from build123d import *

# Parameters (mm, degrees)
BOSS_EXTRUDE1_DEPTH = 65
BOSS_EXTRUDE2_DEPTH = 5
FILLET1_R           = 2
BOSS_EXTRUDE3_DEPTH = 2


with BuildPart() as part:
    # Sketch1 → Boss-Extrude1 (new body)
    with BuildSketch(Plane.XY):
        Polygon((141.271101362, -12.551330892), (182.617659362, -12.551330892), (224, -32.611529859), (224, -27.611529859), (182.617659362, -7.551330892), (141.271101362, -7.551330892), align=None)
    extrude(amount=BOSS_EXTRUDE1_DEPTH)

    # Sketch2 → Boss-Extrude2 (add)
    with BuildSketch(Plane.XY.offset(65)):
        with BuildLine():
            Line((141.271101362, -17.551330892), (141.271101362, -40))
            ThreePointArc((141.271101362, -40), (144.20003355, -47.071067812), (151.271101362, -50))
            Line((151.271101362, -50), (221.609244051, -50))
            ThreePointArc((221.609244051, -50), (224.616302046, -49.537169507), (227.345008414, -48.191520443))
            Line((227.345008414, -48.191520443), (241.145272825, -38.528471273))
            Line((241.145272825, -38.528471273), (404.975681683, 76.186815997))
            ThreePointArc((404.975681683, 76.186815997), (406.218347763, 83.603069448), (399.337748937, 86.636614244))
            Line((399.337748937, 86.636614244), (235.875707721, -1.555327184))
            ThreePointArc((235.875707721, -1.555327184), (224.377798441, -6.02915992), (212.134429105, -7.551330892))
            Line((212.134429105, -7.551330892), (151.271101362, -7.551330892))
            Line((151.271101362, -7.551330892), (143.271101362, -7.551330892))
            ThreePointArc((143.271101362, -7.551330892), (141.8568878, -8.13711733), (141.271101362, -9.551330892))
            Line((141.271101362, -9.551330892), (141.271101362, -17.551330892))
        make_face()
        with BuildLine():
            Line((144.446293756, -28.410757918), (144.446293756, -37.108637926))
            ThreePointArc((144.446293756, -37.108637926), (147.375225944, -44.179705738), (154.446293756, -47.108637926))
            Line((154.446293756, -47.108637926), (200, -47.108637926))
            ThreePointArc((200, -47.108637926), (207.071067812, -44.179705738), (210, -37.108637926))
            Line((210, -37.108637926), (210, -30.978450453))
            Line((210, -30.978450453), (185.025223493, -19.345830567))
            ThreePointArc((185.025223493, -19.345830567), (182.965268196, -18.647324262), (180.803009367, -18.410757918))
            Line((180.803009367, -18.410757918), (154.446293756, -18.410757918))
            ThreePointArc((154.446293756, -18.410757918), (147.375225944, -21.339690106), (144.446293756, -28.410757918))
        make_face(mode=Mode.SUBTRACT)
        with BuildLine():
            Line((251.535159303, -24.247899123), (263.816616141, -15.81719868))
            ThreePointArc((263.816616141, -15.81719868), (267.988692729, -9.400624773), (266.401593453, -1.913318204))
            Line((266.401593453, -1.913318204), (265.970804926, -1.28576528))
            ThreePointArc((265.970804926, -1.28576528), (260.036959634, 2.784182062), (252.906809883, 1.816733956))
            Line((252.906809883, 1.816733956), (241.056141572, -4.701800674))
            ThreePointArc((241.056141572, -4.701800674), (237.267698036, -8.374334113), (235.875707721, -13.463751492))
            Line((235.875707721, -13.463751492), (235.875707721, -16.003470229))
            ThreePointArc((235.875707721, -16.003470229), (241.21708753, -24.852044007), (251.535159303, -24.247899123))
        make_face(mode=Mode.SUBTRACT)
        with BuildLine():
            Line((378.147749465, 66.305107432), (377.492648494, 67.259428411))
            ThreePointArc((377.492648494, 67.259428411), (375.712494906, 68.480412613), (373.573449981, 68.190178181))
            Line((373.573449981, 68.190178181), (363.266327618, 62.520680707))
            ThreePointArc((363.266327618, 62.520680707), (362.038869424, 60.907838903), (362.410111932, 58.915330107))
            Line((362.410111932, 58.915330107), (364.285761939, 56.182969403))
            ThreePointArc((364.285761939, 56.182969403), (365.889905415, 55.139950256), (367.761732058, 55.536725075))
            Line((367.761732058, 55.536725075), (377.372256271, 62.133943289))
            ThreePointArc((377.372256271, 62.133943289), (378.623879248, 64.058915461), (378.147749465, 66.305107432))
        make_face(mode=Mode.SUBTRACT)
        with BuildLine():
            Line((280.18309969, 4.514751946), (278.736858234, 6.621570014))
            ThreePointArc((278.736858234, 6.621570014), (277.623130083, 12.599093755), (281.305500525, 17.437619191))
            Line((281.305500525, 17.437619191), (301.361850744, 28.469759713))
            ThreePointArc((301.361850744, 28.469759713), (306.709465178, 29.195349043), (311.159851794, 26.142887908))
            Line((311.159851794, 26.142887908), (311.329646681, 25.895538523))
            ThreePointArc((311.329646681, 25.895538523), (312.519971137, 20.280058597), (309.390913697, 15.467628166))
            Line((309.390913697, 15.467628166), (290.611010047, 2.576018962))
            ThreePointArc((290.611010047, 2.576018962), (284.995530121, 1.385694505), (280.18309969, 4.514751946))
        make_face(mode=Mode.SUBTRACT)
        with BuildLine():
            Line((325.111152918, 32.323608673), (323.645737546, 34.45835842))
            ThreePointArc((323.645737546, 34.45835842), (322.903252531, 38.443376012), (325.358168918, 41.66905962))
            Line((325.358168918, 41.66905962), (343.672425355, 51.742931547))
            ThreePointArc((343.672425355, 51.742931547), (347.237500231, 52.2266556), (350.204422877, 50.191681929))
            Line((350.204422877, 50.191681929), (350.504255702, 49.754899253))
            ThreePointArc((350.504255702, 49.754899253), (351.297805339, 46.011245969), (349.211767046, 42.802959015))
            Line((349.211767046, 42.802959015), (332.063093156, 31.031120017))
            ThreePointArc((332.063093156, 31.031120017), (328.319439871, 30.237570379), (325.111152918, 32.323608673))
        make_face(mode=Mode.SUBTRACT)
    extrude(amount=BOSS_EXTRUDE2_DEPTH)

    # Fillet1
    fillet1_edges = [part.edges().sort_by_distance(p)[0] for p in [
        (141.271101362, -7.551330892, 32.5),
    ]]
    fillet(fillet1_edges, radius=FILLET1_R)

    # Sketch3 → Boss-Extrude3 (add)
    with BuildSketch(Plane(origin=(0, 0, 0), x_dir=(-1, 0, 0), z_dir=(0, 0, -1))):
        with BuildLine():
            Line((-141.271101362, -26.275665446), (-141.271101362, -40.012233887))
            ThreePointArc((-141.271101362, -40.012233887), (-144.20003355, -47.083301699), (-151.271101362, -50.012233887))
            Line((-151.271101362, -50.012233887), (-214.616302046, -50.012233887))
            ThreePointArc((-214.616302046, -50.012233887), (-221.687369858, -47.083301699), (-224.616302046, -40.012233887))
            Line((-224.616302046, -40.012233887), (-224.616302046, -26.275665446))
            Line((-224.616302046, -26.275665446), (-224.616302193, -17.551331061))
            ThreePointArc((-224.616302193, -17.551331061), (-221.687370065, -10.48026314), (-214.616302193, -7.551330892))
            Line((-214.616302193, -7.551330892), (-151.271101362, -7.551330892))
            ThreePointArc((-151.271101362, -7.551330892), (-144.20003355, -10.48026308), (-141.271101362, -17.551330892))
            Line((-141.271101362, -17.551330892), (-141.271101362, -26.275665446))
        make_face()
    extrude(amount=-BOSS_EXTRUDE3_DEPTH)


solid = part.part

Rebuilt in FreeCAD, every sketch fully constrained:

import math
import FreeCAD as App
import Part
import Sketcher
from FreeCAD import Vector
Q = App.Units.Quantity


def edges_at(feature, points):
    """Names of the edges that pass closest to the given points."""
    edges = feature.Shape.Edges
    near = lambda p: min(range(len(edges)), key=lambda i: edges[i].distToShape(Part.Vertex(*p))[0])
    return sorted({f"Edge{near(p) + 1}" for p in points})


def add_polygon(sketch, points):
    """Adds a closed chain of lines whose ends are joined by coincident constraints."""
    first, n = sketch.GeometryCount, len(points)
    for a, b in zip(points, points[1:] + points[:1]):
        sketch.addGeometry(Part.LineSegment(App.Vector(*a, 0), App.Vector(*b, 0)), False)
    for i in range(n):
        sketch.addConstraint(Sketcher.Constraint("Coincident", first + i, 2, first + (i + 1) % n, 1))

doc = App.newDocument("Part")
body = doc.addObject("PartDesign::Body", "Body")

sketch1 = body.newObject("Sketcher::SketchObject", "Sketch")
sketch1.AttachmentSupport = (doc.getObject("XY_Plane"), [""])
sketch1.MapMode = "FlatFace"
add_polygon(sketch1, [(141.3, -12.6), (182.6, -12.6), (224, -32.6), (224, -27.6), (182.6, -7.6), (141.3, -7.6)])
sketch1.addConstraint([
    Sketcher.Constraint("Horizontal", 0),
    Sketcher.Constraint("Vertical", 2),
    Sketcher.Constraint("Horizontal", 4),
    Sketcher.Constraint("Vertical", 5),
    Sketcher.Constraint("Parallel", 1, 3),
    Sketcher.Constraint("Vertical", 0, 2, 3, 2),
    Sketcher.Constraint("DistanceY", 2, 1, 2, 2, 5.0),
    Sketcher.Constraint("DistanceX", -1, 1, 1, 2, 224.0),
    Sketcher.Constraint("DistanceX", 0, 1, 0, 2, 41.346558),
    Sketcher.Constraint("DistanceX", -1, 1, 4, 2, 141.271101),
    Sketcher.Constraint("DistanceY", 1, 2, 0, 2, 20.060199),
    Sketcher.Constraint("DistanceY", 0, 2, -1, 1, 12.551331),
])
pad1 = body.newObject("PartDesign::Pad", "Pad")
pad1.Profile = sketch1
pad1.Length = 65

sketch2 = body.newObject("Sketcher::SketchObject", "Sketch001")
sketch2.AttachmentSupport = (doc.getObject("XY_Plane"), [""])
sketch2.MapMode = "FlatFace"
sketch2.AttachmentOffset = App.Placement(Vector(0, 0, 65), App.Rotation())
sketch2.addGeometry([
    Part.ArcOfCircle(Part.Circle(Vector(151.27, -40, 0), Vector(0, 0, 1), 10), math.radians(180), math.radians(270)),
    Part.LineSegment(Vector(151.27, -50, 0), Vector(221.61, -50, 0)),
    Part.ArcOfCircle(Part.Circle(Vector(221.61, -40, 0), Vector(0, 0, 1), 10), math.radians(-90), math.radians(-55)),
    Part.LineSegment(Vector(227.35, -48.19, 0), Vector(241.15, -38.53, 0)),
    Part.LineSegment(Vector(241.15, -38.53, 0), Vector(404.98, 76.19, 0)),
    Part.ArcOfCircle(Part.Circle(Vector(400.83, 80.69, 0), Vector(0, 0, 1), 6.13), math.radians(-47), math.radians(104)),
    Part.LineSegment(Vector(399.34, 86.64, 0), Vector(235.88, -1.56, 0)),
    Part.ArcOfCircle(Part.Circle(Vector(212.13, 42.45, 0), Vector(0, 0, 1), 50), math.radians(-90), math.radians(-62)),
    Part.LineSegment(Vector(212.13, -7.55, 0), Vector(143.27, -7.55, 0)),
    Part.ArcOfCircle(Part.Circle(Vector(143.27, -9.55, 0), Vector(0, 0, 1), 2), math.radians(90), math.radians(180)),
    Part.LineSegment(Vector(141.27, -9.55, 0), Vector(141.27, -40, 0)),
    Part.LineSegment(Vector(144.45, -37.11, 0), Vector(144.45, -28.41, 0)),
    Part.ArcOfCircle(Part.Circle(Vector(154.45, -28.41, 0), Vector(0, 0, 1), 10), math.radians(90), math.radians(180)),
    Part.LineSegment(Vector(154.45, -18.41, 0), Vector(180.8, -18.41, 0)),
    Part.ArcOfCircle(Part.Circle(Vector(180.8, -28.41, 0), Vector(0, 0, 1), 10), math.radians(65), math.radians(90)),
    Part.LineSegment(Vector(185.03, -19.35, 0), Vector(210, -30.98, 0)),
    Part.LineSegment(Vector(210, -30.98, 0), Vector(210, -37.11, 0)),
    Part.ArcOfCircle(Part.Circle(Vector(200, -37.11, 0), Vector(0, 0, 1), 10), math.radians(-90), math.radians(0)),
    Part.LineSegment(Vector(200, -47.11, 0), Vector(154.45, -47.11, 0)),
    Part.ArcOfCircle(Part.Circle(Vector(154.45, -37.11, 0), Vector(0, 0, 1), 10), math.radians(180), math.radians(270)),
    Part.LineSegment(Vector(263.82, -15.82, 0), Vector(251.54, -24.25, 0)),
    Part.ArcOfCircle(Part.Circle(Vector(245.88, -16, 0), Vector(0, 0, 1), 10), math.radians(-180), math.radians(-56)),
    Part.LineSegment(Vector(235.88, -16, 0), Vector(235.88, -13.46, 0)),
    Part.ArcOfCircle(Part.Circle(Vector(245.88, -13.46, 0), Vector(0, 0, 1), 10), math.radians(119), math.radians(180)),
    Part.LineSegment(Vector(241.06, -4.7, 0), Vector(252.91, 1.82, 0)),
    Part.ArcOfCircle(Part.Circle(Vector(257.73, -6.95, 0), Vector(0, 0, 1), 10), math.radians(34), math.radians(119)),
    Part.LineSegment(Vector(265.97, -1.29, 0), Vector(266.4, -1.91, 0)),
    Part.ArcOfCircle(Part.Circle(Vector(258.16, -7.57, 0), Vector(0, 0, 1), 10), math.radians(-56), math.radians(34)),
    Part.ArcOfCircle(Part.Circle(Vector(286.37, 8.76, 0), Vector(0, 0, 1), 7.5), math.radians(-146), math.radians(-56)),
    Part.LineSegment(Vector(280.18, 4.51, 0), Vector(278.74, 6.62, 0)),
    Part.ArcOfCircle(Part.Circle(Vector(284.92, 10.87, 0), Vector(0, 0, 1), 7.5), math.radians(119), math.radians(214)),
    Part.LineSegment(Vector(281.31, 17.44, 0), Vector(301.36, 28.47, 0)),
    Part.ArcOfCircle(Part.Circle(Vector(304.98, 21.9, 0), Vector(0, 0, 1), 7.5), math.radians(34), math.radians(119)),
    Part.LineSegment(Vector(311.16, 26.14, 0), Vector(311.33, 25.9, 0)),
    Part.ArcOfCircle(Part.Circle(Vector(305.15, 21.65, 0), Vector(0, 0, 1), 7.5), math.radians(-56), math.radians(34)),
    Part.LineSegment(Vector(309.39, 15.47, 0), Vector(290.61, 2.58, 0)),
    Part.ArcOfCircle(Part.Circle(Vector(329.23, 35.15, 0), Vector(0, 0, 1), 5), math.radians(-146), math.radians(-56)),
    Part.LineSegment(Vector(325.11, 32.32, 0), Vector(323.65, 34.46, 0)),
    Part.ArcOfCircle(Part.Circle(Vector(327.77, 37.29, 0), Vector(0, 0, 1), 5), math.radians(119), math.radians(214)),
    Part.LineSegment(Vector(325.36, 41.67, 0), Vector(343.67, 51.74, 0)),
    Part.ArcOfCircle(Part.Circle(Vector(346.08, 47.36, 0), Vector(0, 0, 1), 5), math.radians(34), math.radians(119)),
    Part.LineSegment(Vector(350.2, 50.19, 0), Vector(350.5, 49.75, 0)),
    Part.ArcOfCircle(Part.Circle(Vector(346.38, 46.93, 0), Vector(0, 0, 1), 5), math.radians(-56), math.radians(34)),
    Part.LineSegment(Vector(349.21, 42.8, 0), Vector(332.06, 31.03, 0)),
    Part.LineSegment(Vector(377.49, 67.26, 0), Vector(378.15, 66.31, 0)),
    Part.ArcOfCircle(Part.Circle(Vector(375.67, 64.61, 0), Vector(0, 0, 1), 3), math.radians(-56), math.radians(34)),
    Part.LineSegment(Vector(377.37, 62.13, 0), Vector(367.76, 55.54, 0)),
    Part.ArcOfCircle(Part.Circle(Vector(366.35, 57.6, 0), Vector(0, 0, 1), 2.5), math.radians(-146), math.radians(-56)),
    Part.LineSegment(Vector(364.29, 56.18, 0), Vector(362.41, 58.92, 0)),
    Part.ArcOfCircle(Part.Circle(Vector(364.47, 60.33, 0), Vector(0, 0, 1), 2.5), math.radians(119), math.radians(214)),
    Part.LineSegment(Vector(363.27, 62.52, 0), Vector(373.57, 68.19, 0)),
    Part.ArcOfCircle(Part.Circle(Vector(375.02, 65.56, 0), Vector(0, 0, 1), 3), math.radians(34), math.radians(119)),
], False)
sketch2.addConstraint([
    Sketcher.Constraint("Tangent", 0, 2, 1, 1),
    Sketcher.Constraint("Tangent", 1, 2, 2, 1),
    Sketcher.Constraint("Tangent", 2, 2, 3, 1),
    Sketcher.Constraint("Coincident", 3, 2, 4, 1),
    Sketcher.Constraint("Coincident", 4, 2, 5, 1),
    Sketcher.Constraint("Coincident", 5, 2, 6, 1),
    Sketcher.Constraint("Tangent", 6, 2, 7, 2),
    Sketcher.Constraint("Tangent", 7, 1, 8, 1),
    Sketcher.Constraint("Tangent", 8, 2, 9, 1),
    Sketcher.Constraint("Tangent", 9, 2, 10, 1),
    Sketcher.Constraint("Tangent", 10, 2, 0, 1),
    Sketcher.Constraint("Tangent", 11, 2, 12, 2),
    Sketcher.Constraint("Tangent", 12, 1, 13, 1),
    Sketcher.Constraint("Tangent", 13, 2, 14, 2),
    Sketcher.Constraint("Tangent", 14, 1, 15, 1),
    Sketcher.Constraint("Coincident", 15, 2, 16, 1),
    Sketcher.Constraint("Tangent", 16, 2, 17, 2),
    Sketcher.Constraint("Tangent", 17, 1, 18, 1),
    Sketcher.Constraint("Tangent", 18, 2, 19, 2),
    Sketcher.Constraint("Tangent", 19, 1, 11, 1),
    Sketcher.Constraint("Tangent", 20, 2, 21, 2),
    Sketcher.Constraint("Tangent", 21, 1, 22, 1),
    Sketcher.Constraint("Tangent", 22, 2, 23, 2),
    Sketcher.Constraint("Tangent", 23, 1, 24, 1),
    Sketcher.Constraint("Tangent", 24, 2, 25, 2),
    Sketcher.Constraint("Tangent", 25, 1, 26, 1),
    Sketcher.Constraint("Tangent", 26, 2, 27, 2),
    Sketcher.Constraint("Tangent", 27, 1, 20, 1),
    Sketcher.Constraint("Tangent", 28, 1, 29, 1),
    Sketcher.Constraint("Tangent", 29, 2, 30, 2),
    Sketcher.Constraint("Tangent", 30, 1, 31, 1),
    Sketcher.Constraint("Tangent", 31, 2, 32, 2),
    Sketcher.Constraint("Tangent", 32, 1, 33, 1),
    Sketcher.Constraint("Tangent", 33, 2, 34, 2),
    Sketcher.Constraint("Tangent", 34, 1, 35, 1),
    Sketcher.Constraint("Tangent", 35, 2, 28, 2),
    Sketcher.Constraint("Tangent", 36, 1, 37, 1),
    Sketcher.Constraint("Tangent", 37, 2, 38, 2),
    Sketcher.Constraint("Tangent", 38, 1, 39, 1),
    Sketcher.Constraint("Tangent", 39, 2, 40, 2),
    Sketcher.Constraint("Tangent", 40, 1, 41, 1),
    Sketcher.Constraint("Tangent", 41, 2, 42, 2),
    Sketcher.Constraint("Tangent", 42, 1, 43, 1),
    Sketcher.Constraint("Tangent", 43, 2, 36, 2),
    Sketcher.Constraint("Tangent", 44, 2, 45, 2),
    Sketcher.Constraint("Tangent", 45, 1, 46, 1),
    Sketcher.Constraint("Tangent", 46, 2, 47, 2),
    Sketcher.Constraint("Tangent", 47, 1, 48, 1),
    Sketcher.Constraint("Tangent", 48, 2, 49, 2),
    Sketcher.Constraint("Tangent", 49, 1, 50, 1),
    Sketcher.Constraint("Tangent", 50, 2, 51, 2),
    Sketcher.Constraint("Tangent", 51, 1, 44, 1),
    Sketcher.Constraint("Horizontal", 1),
    Sketcher.Constraint("Horizontal", 8),
    Sketcher.Constraint("Vertical", 10),
    Sketcher.Constraint("Vertical", 11),
    Sketcher.Constraint("Horizontal", 13),
    Sketcher.Constraint("Vertical", 16),
    Sketcher.Constraint("Horizontal", 18),
    Sketcher.Constraint("Vertical", 22),
    Sketcher.Constraint("Equal", 0, 2),
    Sketcher.Constraint("Equal", 2, 12),
    Sketcher.Constraint("Equal", 12, 14),
    Sketcher.Constraint("Equal", 14, 17),
    Sketcher.Constraint("Equal", 17, 19),
    Sketcher.Constraint("Equal", 19, 21),
    Sketcher.Constraint("Equal", 21, 23),
    Sketcher.Constraint("Equal", 23, 25),
    Sketcher.Constraint("Equal", 25, 27),
    Sketcher.Constraint("Equal", 28, 30),
    Sketcher.Constraint("Equal", 30, 32),
    Sketcher.Constraint("Equal", 32, 34),
    Sketcher.Constraint("Equal", 36, 38),
    Sketcher.Constraint("Equal", 38, 40),
    Sketcher.Constraint("Equal", 40, 42),
    Sketcher.Constraint("Equal", 47, 49),
    Sketcher.Constraint("Equal", 45, 51),
    Sketcher.Constraint("Parallel", 3, 4),
    Sketcher.Constraint("Perpendicular", 20, 26),
    Sketcher.Constraint("Parallel", 26, 29),
    Sketcher.Constraint("Parallel", 24, 31),
    Sketcher.Constraint("Parallel", 29, 33),
    Sketcher.Constraint("Perpendicular", 33, 35),
    Sketcher.Constraint("Perpendicular", 35, 37),
    Sketcher.Constraint("Parallel", 31, 39),
    Sketcher.Constraint("Parallel", 37, 41),
    Sketcher.Constraint("Perpendicular", 41, 43),
    Sketcher.Constraint("Perpendicular", 43, 44),
    Sketcher.Constraint("Perpendicular", 44, 46),
    Sketcher.Constraint("Perpendicular", 46, 48),
    Sketcher.Constraint("Parallel", 39, 50),
    Sketcher.Constraint("Vertical", 6, 2, 21, 1),
    Sketcher.Constraint("Radius", 0, 10.0),
    Sketcher.Constraint("Radius", 7, 50.0),
    Sketcher.Constraint("Radius", 9, 2.0),
    Sketcher.Constraint("Radius", 36, 5.0),
    Sketcher.Constraint("Radius", 45, 3.0),
    Sketcher.Constraint("Radius", 28, 7.5),
    Sketcher.Constraint("Radius", 47, 2.5),
    Sketcher.Constraint("Angle", 3, Q("35 deg")),
    Sketcher.Constraint("Distance", 4, 200.0),
    Sketcher.Constraint("DistanceY", 0, 3, -1, 1, 40.0),
    Sketcher.Constraint("DistanceX", -1, 1, 17, 3, 200.0),
    Sketcher.Constraint("Radius", 5, 6.126127),
    Sketcher.Constraint("Distance", 35, 22.778902),
    Sketcher.Constraint("Distance", 50, 11.763502),
    Sketcher.Constraint("DistanceY", 10, 2, 10, 1, 30.448669),
    Sketcher.Constraint("DistanceY", 11, 1, 11, 2, 8.69788),
    Sketcher.Constraint("DistanceY", 22, 1, 22, 2, 2.539719),
    Sketcher.Constraint("DistanceX", -1, 1, 0, 3, 151.271101),
    Sketcher.Constraint("DistanceY", -1, 1, 32, 3, 21.898299),
    Sketcher.Constraint("DistanceY", 20, 2, -1, 1, 24.247899),
    Sketcher.Constraint("DistanceY", 23, 1, -1, 1, 4.701801),
    Sketcher.Constraint("DistanceY", 27, 1, -1, 1, 15.817199),
    Sketcher.Constraint("DistanceX", -1, 1, 28, 1, 280.1831),
    Sketcher.Constraint("DistanceX", -1, 1, 30, 1, 281.305501),
    Sketcher.Constraint("DistanceY", -1, 1, 41, 2, 49.754899),
    Sketcher.Constraint("Distance", 6, 185.73545),
    Sketcher.Constraint("Distance", 24, 13.525148),
    Sketcher.Constraint("Distance", 39, 20.902031),
    Sketcher.Constraint("Distance", 41, 0.529791),
    Sketcher.Constraint("Distance", 48, 3.31419),
    Sketcher.Constraint("DistanceX", 1, 1, 1, 2, 70.338143),
    Sketcher.Constraint("DistanceX", 8, 2, 8, 1, 68.863328),
    Sketcher.Constraint("DistanceX", 13, 1, 13, 2, 26.356716),
    Sketcher.Constraint("DistanceX", 18, 2, 18, 1, 45.553706),
    Sketcher.Constraint("DistanceY", 16, 2, 16, 1, 6.130187),
    Sketcher.Constraint("DistanceX", -1, 1, 38, 3, 327.767952),
    Sketcher.Constraint("DistanceX", -1, 1, 45, 3, 375.674421),
    Sketcher.Constraint("DistanceY", -1, 1, 45, 3, 64.607272),
    Sketcher.Constraint("DistanceY", 3, 2, -1, 1, 38.528471),
    Sketcher.Constraint("DistanceX", -1, 1, 5, 2, 399.337749),
    Sketcher.Constraint("DistanceY", 14, 1, -1, 1, 19.345831),
])
pad2 = body.newObject("PartDesign::Pad", "Pad001")
pad2.Profile = sketch2
pad2.Length = 5
doc.recompute()

fillet = body.newObject("PartDesign::Fillet", "Fillet")
fillet.Base = (pad2, edges_at(pad2, [(141.271, -7.551, 32.5)]))
fillet.Radius = 2

sketch3 = body.newObject("Sketcher::SketchObject", "Sketch002")
sketch3.AttachmentSupport = (doc.getObject("XY_Plane"), [""])
sketch3.MapMode = "FlatFace"
sketch3.addGeometry([
    Part.ArcOfCircle(Part.Circle(Vector(151, -40, 0), Vector(0, 0, 1), 10), math.radians(180), math.radians(270)),
    Part.LineSegment(Vector(141, -40, 0), Vector(141, -18, 0)),
    Part.ArcOfCircle(Part.Circle(Vector(151, -18, 0), Vector(0, 0, 1), 10), math.radians(90), math.radians(180)),
    Part.LineSegment(Vector(151, -8, 0), Vector(215, -8, 0)),
    Part.ArcOfCircle(Part.Circle(Vector(215, -18, 0), Vector(0, 0, 1), 10), math.radians(0), math.radians(90)),
    Part.LineSegment(Vector(225, -18, 0), Vector(225, -26, 0)),
    Part.LineSegment(Vector(225, -26, 0), Vector(225, -40, 0)),
    Part.ArcOfCircle(Part.Circle(Vector(215, -40, 0), Vector(0, 0, 1), 10), math.radians(-90), math.radians(0)),
    Part.LineSegment(Vector(215, -50, 0), Vector(151, -50, 0)),
], False)
sketch3.addConstraint([
    Sketcher.Constraint("Tangent", 0, 1, 1, 1),
    Sketcher.Constraint("Tangent", 1, 2, 2, 2),
    Sketcher.Constraint("Tangent", 2, 1, 3, 1),
    Sketcher.Constraint("Tangent", 3, 2, 4, 2),
    Sketcher.Constraint("Tangent", 4, 1, 5, 1),
    Sketcher.Constraint("Coincident", 5, 2, 6, 1),
    Sketcher.Constraint("Tangent", 6, 2, 7, 2),
    Sketcher.Constraint("Tangent", 7, 1, 8, 1),
    Sketcher.Constraint("Tangent", 8, 2, 0, 2),
    Sketcher.Constraint("Vertical", 1),
    Sketcher.Constraint("Horizontal", 3),
    Sketcher.Constraint("Vertical", 5),
    Sketcher.Constraint("Vertical", 6),
    Sketcher.Constraint("Horizontal", 8),
    Sketcher.Constraint("Equal", 0, 2),
    Sketcher.Constraint("Equal", 2, 4),
    Sketcher.Constraint("Equal", 4, 7),
    Sketcher.Constraint("Radius", 0, 10.0),
    Sketcher.Constraint("DistanceX", 3, 1, 3, 2, 63.345201),
    Sketcher.Constraint("DistanceY", 6, 2, 6, 1, 13.736568),
    Sketcher.Constraint("DistanceX", -1, 1, 0, 3, 151.271101),
    Sketcher.Constraint("DistanceY", 1, 1, 1, 2, 22.460903),
    Sketcher.Constraint("DistanceY", 2, 3, -1, 1, 17.551331),
])
pad3 = body.newObject("PartDesign::Pad", "Pad002")
pad3.Profile = sketch3
pad3.Length = 2

doc.recompute()
